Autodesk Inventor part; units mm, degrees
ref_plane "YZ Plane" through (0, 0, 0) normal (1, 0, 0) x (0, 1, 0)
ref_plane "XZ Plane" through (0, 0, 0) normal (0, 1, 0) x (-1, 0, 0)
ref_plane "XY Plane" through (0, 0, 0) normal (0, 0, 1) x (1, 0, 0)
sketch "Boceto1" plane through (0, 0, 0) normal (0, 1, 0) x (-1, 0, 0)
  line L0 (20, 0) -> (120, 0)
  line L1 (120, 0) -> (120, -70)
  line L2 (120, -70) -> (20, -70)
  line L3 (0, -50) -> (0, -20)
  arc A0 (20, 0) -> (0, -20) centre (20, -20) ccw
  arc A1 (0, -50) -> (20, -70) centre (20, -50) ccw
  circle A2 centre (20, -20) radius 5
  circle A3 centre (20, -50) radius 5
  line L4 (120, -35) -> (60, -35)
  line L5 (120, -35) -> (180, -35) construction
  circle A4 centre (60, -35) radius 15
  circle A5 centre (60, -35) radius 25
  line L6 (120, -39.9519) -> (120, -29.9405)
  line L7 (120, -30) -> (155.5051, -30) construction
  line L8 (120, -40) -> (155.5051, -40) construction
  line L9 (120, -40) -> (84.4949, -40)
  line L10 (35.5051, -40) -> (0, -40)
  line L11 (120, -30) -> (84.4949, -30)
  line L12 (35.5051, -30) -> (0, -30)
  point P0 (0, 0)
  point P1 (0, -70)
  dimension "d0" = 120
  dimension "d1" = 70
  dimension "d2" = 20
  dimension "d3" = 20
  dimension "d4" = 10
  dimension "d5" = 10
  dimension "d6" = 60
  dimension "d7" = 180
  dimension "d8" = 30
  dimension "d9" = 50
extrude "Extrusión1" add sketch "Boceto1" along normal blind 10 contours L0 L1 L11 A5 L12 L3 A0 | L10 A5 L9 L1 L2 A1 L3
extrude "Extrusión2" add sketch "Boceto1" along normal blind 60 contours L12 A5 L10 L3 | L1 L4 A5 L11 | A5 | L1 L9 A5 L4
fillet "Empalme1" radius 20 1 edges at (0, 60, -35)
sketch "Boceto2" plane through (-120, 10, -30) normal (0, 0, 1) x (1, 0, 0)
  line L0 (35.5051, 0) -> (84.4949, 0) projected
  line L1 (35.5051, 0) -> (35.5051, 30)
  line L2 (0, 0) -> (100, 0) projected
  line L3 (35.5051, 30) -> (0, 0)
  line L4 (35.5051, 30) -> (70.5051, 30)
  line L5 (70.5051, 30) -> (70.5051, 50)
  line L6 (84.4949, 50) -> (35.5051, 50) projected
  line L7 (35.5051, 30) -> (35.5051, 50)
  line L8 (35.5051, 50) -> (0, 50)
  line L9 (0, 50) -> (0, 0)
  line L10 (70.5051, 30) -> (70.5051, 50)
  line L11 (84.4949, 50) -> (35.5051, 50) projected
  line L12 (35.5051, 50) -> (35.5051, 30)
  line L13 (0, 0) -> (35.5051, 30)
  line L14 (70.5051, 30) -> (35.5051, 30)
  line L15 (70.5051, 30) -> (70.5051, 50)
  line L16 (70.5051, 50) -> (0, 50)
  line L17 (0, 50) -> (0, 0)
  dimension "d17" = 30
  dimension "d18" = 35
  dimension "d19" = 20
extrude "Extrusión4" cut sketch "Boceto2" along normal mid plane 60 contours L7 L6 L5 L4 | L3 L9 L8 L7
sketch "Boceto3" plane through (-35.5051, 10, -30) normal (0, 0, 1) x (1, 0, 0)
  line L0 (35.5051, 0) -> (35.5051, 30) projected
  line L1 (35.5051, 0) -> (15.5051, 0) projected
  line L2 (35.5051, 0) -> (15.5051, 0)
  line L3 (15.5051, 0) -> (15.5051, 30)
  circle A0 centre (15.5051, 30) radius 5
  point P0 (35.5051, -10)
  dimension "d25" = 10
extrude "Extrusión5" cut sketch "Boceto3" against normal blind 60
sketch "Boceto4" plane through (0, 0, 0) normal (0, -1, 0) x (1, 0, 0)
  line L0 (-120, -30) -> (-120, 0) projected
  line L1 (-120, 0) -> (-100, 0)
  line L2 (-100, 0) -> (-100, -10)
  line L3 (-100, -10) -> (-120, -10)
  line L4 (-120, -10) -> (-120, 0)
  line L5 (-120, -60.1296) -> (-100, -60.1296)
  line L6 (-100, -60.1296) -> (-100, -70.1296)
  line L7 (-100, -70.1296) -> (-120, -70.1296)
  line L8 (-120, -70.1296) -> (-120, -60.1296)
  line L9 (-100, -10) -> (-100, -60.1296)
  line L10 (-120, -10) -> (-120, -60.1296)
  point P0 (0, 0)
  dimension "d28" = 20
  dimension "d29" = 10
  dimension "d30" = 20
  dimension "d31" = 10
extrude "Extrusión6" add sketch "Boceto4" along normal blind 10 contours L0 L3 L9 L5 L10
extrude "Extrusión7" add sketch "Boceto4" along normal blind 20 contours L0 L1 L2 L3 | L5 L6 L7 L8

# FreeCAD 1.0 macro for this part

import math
import FreeCAD as App
import Part
import Sketcher


def edges_at(feature, points):
    """Names of the edges that pass closest to the given points."""
    edges = feature.Shape.Edges
    near = lambda p: min(range(len(edges)), key=lambda i: edges[i].distToShape(Part.Vertex(*p))[0])
    return sorted({f"Edge{near(p) + 1}" for p in points})

doc = App.newDocument("Part")
body = doc.addObject("PartDesign::Body", "Body")
body.AllowCompound = True

sketch1 = body.newObject("Sketcher::SketchObject", "Sketch")
sketch1.AttachmentSupport = (doc.getObject("XZ_Plane"), [""])
sketch1.MapMode = "FlatFace"
sketch1.addGeometry([
    Part.LineSegment(App.Vector(-120, 0, 0), App.Vector(-20, 0, 0)),
    Part.ArcOfCircle(Part.Circle(App.Vector(-20, -20, 0), App.Vector(0, 0, 1), 20), math.radians(0), math.radians(90)),
    Part.LineSegment(App.Vector(0, -20, 0), App.Vector(0, -30, 0)),
    Part.LineSegment(App.Vector(0, -30, 0), App.Vector(-35.5051, -30, 0)),
    Part.ArcOfCircle(Part.Circle(App.Vector(-60, -35, 0), App.Vector(0, 0, 1), 25), math.radians(11.536958), math.radians(168.463042)),
    Part.LineSegment(App.Vector(-84.4949, -30, 0), App.Vector(-120, -30, 0)),
    Part.LineSegment(App.Vector(-120, -30, 0), App.Vector(-120, 0, 0)),
    Part.Circle(App.Vector(-20, -20, 0), App.Vector(0, 0, 1), 5),
    Part.LineSegment(App.Vector(-35.5051, -40, 0), App.Vector(0, -40, 0)),
    Part.LineSegment(App.Vector(0, -40, 0), App.Vector(0, -50, 0)),
    Part.ArcOfCircle(Part.Circle(App.Vector(-20, -50, 0), App.Vector(0, 0, 1), 20), math.radians(-90), math.radians(0)),
    Part.LineSegment(App.Vector(-20, -70, 0), App.Vector(-120, -70, 0)),
    Part.LineSegment(App.Vector(-120, -70, 0), App.Vector(-120, -40, 0)),
    Part.LineSegment(App.Vector(-120, -40, 0), App.Vector(-84.4949, -40, 0)),
    Part.ArcOfCircle(Part.Circle(App.Vector(-60, -35, 0), App.Vector(0, 0, 1), 25), math.radians(-168.463042), math.radians(-11.536958)),
    Part.Circle(App.Vector(-20, -50, 0), App.Vector(0, 0, 1), 5),
], False)
sketch1.addConstraint([
    Sketcher.Constraint("Tangent", 0, 2, 1, 2),
    Sketcher.Constraint("Tangent", 1, 1, 2, 1),
    Sketcher.Constraint("Coincident", 2, 2, 3, 1),
    Sketcher.Constraint("Coincident", 3, 2, 4, 1),
    Sketcher.Constraint("Coincident", 4, 2, 5, 1),
    Sketcher.Constraint("Coincident", 5, 2, 6, 1),
    Sketcher.Constraint("Coincident", 6, 2, 0, 1),
    Sketcher.Constraint("Coincident", 8, 2, 9, 1),
    Sketcher.Constraint("Tangent", 9, 2, 10, 2),
    Sketcher.Constraint("Tangent", 10, 1, 11, 1),
    Sketcher.Constraint("Coincident", 11, 2, 12, 1),
    Sketcher.Constraint("Coincident", 12, 2, 13, 1),
    Sketcher.Constraint("Coincident", 13, 2, 14, 1),
    Sketcher.Constraint("Coincident", 14, 2, 8, 1),
    Sketcher.Constraint("Horizontal", 0),
    Sketcher.Constraint("Vertical", 2),
    Sketcher.Constraint("Horizontal", 3),
    Sketcher.Constraint("Horizontal", 5),
    Sketcher.Constraint("Vertical", 6),
    Sketcher.Constraint("Horizontal", 8),
    Sketcher.Constraint("Vertical", 9),
    Sketcher.Constraint("Horizontal", 11),
    Sketcher.Constraint("Vertical", 12),
    Sketcher.Constraint("Horizontal", 13),
    Sketcher.Constraint("Coincident", 7, 3, 1, 3),
    Sketcher.Constraint("Coincident", 14, 3, 4, 3),
    Sketcher.Constraint("Coincident", 15, 3, 10, 3),
    Sketcher.Constraint("Equal", 1, 10),
    Sketcher.Constraint("Equal", 4, 14),
    Sketcher.Constraint("Equal", 7, 15),
    Sketcher.Constraint("PointOnObject", 0, 2, -1),
    Sketcher.Constraint("PointOnObject", 1, 1, -2),
    Sketcher.Constraint("PointOnObject", 8, 2, -2),
    Sketcher.Constraint("Horizontal", 3, 2, 4, 2),
    Sketcher.Constraint("Horizontal", 8, 2, 12, 2),
    Sketcher.Constraint("Vertical", 6, 2, 11, 2),
    Sketcher.Constraint("Vertical", 4, 2, 13, 2),
    Sketcher.Constraint("Equal", 3, 5),
    Sketcher.Constraint("Equal", 2, 9),
    Sketcher.Constraint("Diameter", 7, 10.0),
    Sketcher.Constraint("Radius", 1, 20.0),
    Sketcher.Constraint("Radius", 4, 25.0),
    Sketcher.Constraint("DistanceY", 2, 2, 2, 1, 10.0),
    Sketcher.Constraint("DistanceX", 4, 3, -1, 1, 60.0),
    Sketcher.Constraint("DistanceY", 10, 3, -1, 1, 50.0),
])
pad1 = body.newObject("PartDesign::Pad", "Pad")
pad1.Profile = sketch1
pad1.Length = 10
pad1.Reversed = True

sketch2 = body.newObject("Sketcher::SketchObject", "Sketch001")
sketch2.AttachmentSupport = (doc.getObject("XZ_Plane"), [""])
sketch2.MapMode = "FlatFace"
sketch2.addGeometry([
    Part.LineSegment(App.Vector(-35.5051, -30, 0), App.Vector(0, -30, 0)),
    Part.LineSegment(App.Vector(0, -30, 0), App.Vector(0, -40, 0)),
    Part.LineSegment(App.Vector(0, -40, 0), App.Vector(-35.5051, -40, 0)),
    Part.ArcOfCircle(Part.Circle(App.Vector(-60, -35, 0), App.Vector(0, 0, 1), 25), math.radians(-168.463042), math.radians(-11.536958)),
    Part.LineSegment(App.Vector(-84.4949, -40, 0), App.Vector(-120, -40, 0)),
    Part.LineSegment(App.Vector(-120, -40, 0), App.Vector(-120, -30, 0)),
    Part.LineSegment(App.Vector(-120, -30, 0), App.Vector(-84.4949, -30, 0)),
    Part.ArcOfCircle(Part.Circle(App.Vector(-60, -35, 0), App.Vector(0, 0, 1), 25), math.radians(11.536958), math.radians(168.463042)),
    Part.Circle(App.Vector(-60, -35, 0), App.Vector(0, 0, 1), 15),
], False)
sketch2.addConstraint([
    Sketcher.Constraint("Coincident", 0, 2, 1, 1),
    Sketcher.Constraint("Coincident", 1, 2, 2, 1),
    Sketcher.Constraint("Coincident", 2, 2, 3, 2),
    Sketcher.Constraint("Coincident", 3, 1, 4, 1),
    Sketcher.Constraint("Coincident", 4, 2, 5, 1),
    Sketcher.Constraint("Coincident", 5, 2, 6, 1),
    Sketcher.Constraint("Coincident", 6, 2, 7, 2),
    Sketcher.Constraint("Coincident", 7, 1, 0, 1),
    Sketcher.Constraint("Horizontal", 0),
    Sketcher.Constraint("Vertical", 1),
    Sketcher.Constraint("Horizontal", 2),
    Sketcher.Constraint("Horizontal", 4),
    Sketcher.Constraint("Vertical", 5),
    Sketcher.Constraint("Horizontal", 6),
    Sketcher.Constraint("Coincident", 7, 3, 3, 3),
    Sketcher.Constraint("Coincident", 8, 3, 3, 3),
    Sketcher.Constraint("Equal", 3, 7),
    Sketcher.Constraint("PointOnObject", 0, 2, -2),
    Sketcher.Constraint("Horizontal", 2, 2, 3, 1),
    Sketcher.Constraint("Horizontal", 0, 2, 5, 2),
    Sketcher.Constraint("Vertical", 3, 1, 6, 2),
    Sketcher.Constraint("Equal", 2, 4),
    Sketcher.Constraint("Diameter", 8, 30.0),
    Sketcher.Constraint("Radius", 3, 25.0),
    Sketcher.Constraint("DistanceY", 1, 2, 1, 1, 10.0),
    Sketcher.Constraint("DistanceX", 3, 3, -1, 1, 60.0),
    Sketcher.Constraint("DistanceY", 0, 2, -1, 1, 30.0),
])
pad2 = body.newObject("PartDesign::Pad", "Pad001")
pad2.Profile = sketch2
pad2.Length = 60
pad2.Reversed = True
doc.recompute()

fillet = body.newObject("PartDesign::Fillet", "Fillet")
fillet.Base = (pad2, edges_at(pad2, [(0, 60, -35)]))
fillet.Radius = 20

sketch3 = body.newObject("Sketcher::SketchObject", "Sketch002")
sketch3.AttachmentSupport = (doc.getObject("XY_Plane"), [""])
sketch3.MapMode = "FlatFace"
sketch3.AttachmentOffset = App.Placement(App.Vector(0, 0, -30), App.Rotation())
sketch3.addGeometry([
    Part.LineSegment(App.Vector(-49.4949, 60, 0), App.Vector(-120, 60, 0)),
    Part.LineSegment(App.Vector(-120, 60, 0), App.Vector(-120, 10, 0)),
    Part.LineSegment(App.Vector(-120, 10, 0), App.Vector(-84.4949, 40, 0)),
    Part.LineSegment(App.Vector(-84.4949, 40, 0), App.Vector(-49.4949, 40, 0)),
    Part.LineSegment(App.Vector(-49.4949, 40, 0), App.Vector(-49.4949, 60, 0)),
], False)
sketch3.addConstraint([
    Sketcher.Constraint("Coincident", 0, 2, 1, 1),
    Sketcher.Constraint("Coincident", 1, 2, 2, 1),
    Sketcher.Constraint("Coincident", 2, 2, 3, 1),
    Sketcher.Constraint("Coincident", 3, 2, 4, 1),
    Sketcher.Constraint("Coincident", 4, 2, 0, 1),
    Sketcher.Constraint("Horizontal", 0),
    Sketcher.Constraint("Vertical", 1),
    Sketcher.Constraint("Horizontal", 3),
    Sketcher.Constraint("Vertical", 4),
    Sketcher.Constraint("DistanceX", 3, 1, 3, 2, 35.0),
    Sketcher.Constraint("DistanceY", 4, 1, 4, 2, 20.0),
    Sketcher.Constraint("DistanceY", 1, 2, 2, 2, 30.0),
    Sketcher.Constraint("DistanceX", 0, 2, -1, 1, 120.0),
    Sketcher.Constraint("DistanceY", -1, 1, 0, 2, 60.0),
    Sketcher.Constraint("DistanceX", 0, 2, 0, 1, 70.505),
])
pocket1 = body.newObject("PartDesign::Pocket", "Pocket")
pocket1.Profile = sketch3
pocket1.Length = 60
pocket1.Midplane = True

sketch4 = body.newObject("Sketcher::SketchObject", "Sketch003")
sketch4.AttachmentSupport = (doc.getObject("XY_Plane"), [""])
sketch4.MapMode = "FlatFace"
sketch4.AttachmentOffset = App.Placement(App.Vector(0, 0, -30), App.Rotation())
sketch4.addGeometry(Part.Circle(App.Vector(-20, 40, 0), App.Vector(0, 0, 1), 5), False)
sketch4.addConstraint([
    Sketcher.Constraint("Diameter", 0, 10.0),
    Sketcher.Constraint("DistanceX", 0, 3, -1, 1, 20.0),
    Sketcher.Constraint("DistanceY", -1, 1, 0, 3, 40.0),
])
pocket2 = body.newObject("PartDesign::Pocket", "Pocket001")
pocket2.Profile = sketch4
pocket2.Length = 60

sketch5 = body.newObject("Sketcher::SketchObject", "Sketch004")
sketch5.AttachmentSupport = (doc.getObject("XZ_Plane"), [""])
sketch5.MapMode = "FlatFace"
sketch5.addGeometry([
    Part.LineSegment(App.Vector(-120, -10, 0), App.Vector(-120, -60.1296, 0)),
    Part.LineSegment(App.Vector(-120, -60.1296, 0), App.Vector(-100, -60.1296, 0)),
    Part.LineSegment(App.Vector(-100, -60.1296, 0), App.Vector(-100, -10, 0)),
    Part.LineSegment(App.Vector(-100, -10, 0), App.Vector(-120, -10, 0)),
], False)
sketch5.addConstraint([
    Sketcher.Constraint("Coincident", 0, 2, 1, 1),
    Sketcher.Constraint("Coincident", 1, 2, 2, 1),
    Sketcher.Constraint("Coincident", 2, 2, 3, 1),
    Sketcher.Constraint("Coincident", 3, 2, 0, 1),
    Sketcher.Constraint("Vertical", 0),
    Sketcher.Constraint("Horizontal", 1),
    Sketcher.Constraint("Vertical", 2),
    Sketcher.Constraint("Horizontal", 3),
    Sketcher.Constraint("DistanceX", 1, 1, 1, 2, 20.0),
    Sketcher.Constraint("DistanceY", 2, 2, -1, 1, 10.0),
    Sketcher.Constraint("DistanceX", 0, 2, -1, 1, 120.0),
    Sketcher.Constraint("DistanceY", 0, 2, 0, 1, 50.1296),
])
pad3 = body.newObject("PartDesign::Pad", "Pad002")
pad3.Profile = sketch5
pad3.Length = 10

sketch6 = body.newObject("Sketcher::SketchObject", "Sketch005")
sketch6.AttachmentSupport = (doc.getObject("XZ_Plane"), [""])
sketch6.MapMode = "FlatFace"
sketch6.addGeometry([
    Part.LineSegment(App.Vector(-120, 0, 0), App.Vector(-120, -10, 0)),
    Part.LineSegment(App.Vector(-120, -10, 0), App.Vector(-100, -10, 0)),
    Part.LineSegment(App.Vector(-100, -10, 0), App.Vector(-100, 0, 0)),
    Part.LineSegment(App.Vector(-100, 0, 0), App.Vector(-120, 0, 0)),
    Part.LineSegment(App.Vector(-100, -60.1296, 0), App.Vector(-120, -60.1296, 0)),
    Part.LineSegment(App.Vector(-120, -60.1296, 0), App.Vector(-120, -70.1296, 0)),
    Part.LineSegment(App.Vector(-120, -70.1296, 0), App.Vector(-100, -70.1296, 0)),
    Part.LineSegment(App.Vector(-100, -70.1296, 0), App.Vector(-100, -60.1296, 0)),
], False)
sketch6.addConstraint([
    Sketcher.Constraint("Coincident", 0, 2, 1, 1),
    Sketcher.Constraint("Coincident", 1, 2, 2, 1),
    Sketcher.Constraint("Coincident", 2, 2, 3, 1),
    Sketcher.Constraint("Coincident", 3, 2, 0, 1),
    Sketcher.Constraint("Coincident", 4, 2, 5, 1),
    Sketcher.Constraint("Coincident", 5, 2, 6, 1),
    Sketcher.Constraint("Coincident", 6, 2, 7, 1),
    Sketcher.Constraint("Coincident", 7, 2, 4, 1),
    Sketcher.Constraint("Vertical", 0),
    Sketcher.Constraint("Horizontal", 1),
    Sketcher.Constraint("Vertical", 2),
    Sketcher.Constraint("Horizontal", 3),
    Sketcher.Constraint("Horizontal", 4),
    Sketcher.Constraint("Vertical", 5),
    Sketcher.Constraint("Horizontal", 6),
    Sketcher.Constraint("Vertical", 7),
    Sketcher.Constraint("PointOnObject", 2, 2, -1),
    Sketcher.Constraint("Vertical", 3, 2, 4, 2),
    Sketcher.Constraint("Vertical", 2, 2, 6, 2),
    Sketcher.Constraint("Equal", 2, 5),
    Sketcher.Constraint("DistanceX", 1, 1, 1, 2, 20.0),
    Sketcher.Constraint("DistanceY", 0, 2, 0, 1, 10.0),
    Sketcher.Constraint("DistanceX", 0, 2, -1, 1, 120.0),
    Sketcher.Constraint("DistanceY", 4, 2, -1, 1, 60.1296),
])
pad4 = body.newObject("PartDesign::Pad", "Pad003")
pad4.Profile = sketch6
pad4.Length = 20

doc.recompute()
